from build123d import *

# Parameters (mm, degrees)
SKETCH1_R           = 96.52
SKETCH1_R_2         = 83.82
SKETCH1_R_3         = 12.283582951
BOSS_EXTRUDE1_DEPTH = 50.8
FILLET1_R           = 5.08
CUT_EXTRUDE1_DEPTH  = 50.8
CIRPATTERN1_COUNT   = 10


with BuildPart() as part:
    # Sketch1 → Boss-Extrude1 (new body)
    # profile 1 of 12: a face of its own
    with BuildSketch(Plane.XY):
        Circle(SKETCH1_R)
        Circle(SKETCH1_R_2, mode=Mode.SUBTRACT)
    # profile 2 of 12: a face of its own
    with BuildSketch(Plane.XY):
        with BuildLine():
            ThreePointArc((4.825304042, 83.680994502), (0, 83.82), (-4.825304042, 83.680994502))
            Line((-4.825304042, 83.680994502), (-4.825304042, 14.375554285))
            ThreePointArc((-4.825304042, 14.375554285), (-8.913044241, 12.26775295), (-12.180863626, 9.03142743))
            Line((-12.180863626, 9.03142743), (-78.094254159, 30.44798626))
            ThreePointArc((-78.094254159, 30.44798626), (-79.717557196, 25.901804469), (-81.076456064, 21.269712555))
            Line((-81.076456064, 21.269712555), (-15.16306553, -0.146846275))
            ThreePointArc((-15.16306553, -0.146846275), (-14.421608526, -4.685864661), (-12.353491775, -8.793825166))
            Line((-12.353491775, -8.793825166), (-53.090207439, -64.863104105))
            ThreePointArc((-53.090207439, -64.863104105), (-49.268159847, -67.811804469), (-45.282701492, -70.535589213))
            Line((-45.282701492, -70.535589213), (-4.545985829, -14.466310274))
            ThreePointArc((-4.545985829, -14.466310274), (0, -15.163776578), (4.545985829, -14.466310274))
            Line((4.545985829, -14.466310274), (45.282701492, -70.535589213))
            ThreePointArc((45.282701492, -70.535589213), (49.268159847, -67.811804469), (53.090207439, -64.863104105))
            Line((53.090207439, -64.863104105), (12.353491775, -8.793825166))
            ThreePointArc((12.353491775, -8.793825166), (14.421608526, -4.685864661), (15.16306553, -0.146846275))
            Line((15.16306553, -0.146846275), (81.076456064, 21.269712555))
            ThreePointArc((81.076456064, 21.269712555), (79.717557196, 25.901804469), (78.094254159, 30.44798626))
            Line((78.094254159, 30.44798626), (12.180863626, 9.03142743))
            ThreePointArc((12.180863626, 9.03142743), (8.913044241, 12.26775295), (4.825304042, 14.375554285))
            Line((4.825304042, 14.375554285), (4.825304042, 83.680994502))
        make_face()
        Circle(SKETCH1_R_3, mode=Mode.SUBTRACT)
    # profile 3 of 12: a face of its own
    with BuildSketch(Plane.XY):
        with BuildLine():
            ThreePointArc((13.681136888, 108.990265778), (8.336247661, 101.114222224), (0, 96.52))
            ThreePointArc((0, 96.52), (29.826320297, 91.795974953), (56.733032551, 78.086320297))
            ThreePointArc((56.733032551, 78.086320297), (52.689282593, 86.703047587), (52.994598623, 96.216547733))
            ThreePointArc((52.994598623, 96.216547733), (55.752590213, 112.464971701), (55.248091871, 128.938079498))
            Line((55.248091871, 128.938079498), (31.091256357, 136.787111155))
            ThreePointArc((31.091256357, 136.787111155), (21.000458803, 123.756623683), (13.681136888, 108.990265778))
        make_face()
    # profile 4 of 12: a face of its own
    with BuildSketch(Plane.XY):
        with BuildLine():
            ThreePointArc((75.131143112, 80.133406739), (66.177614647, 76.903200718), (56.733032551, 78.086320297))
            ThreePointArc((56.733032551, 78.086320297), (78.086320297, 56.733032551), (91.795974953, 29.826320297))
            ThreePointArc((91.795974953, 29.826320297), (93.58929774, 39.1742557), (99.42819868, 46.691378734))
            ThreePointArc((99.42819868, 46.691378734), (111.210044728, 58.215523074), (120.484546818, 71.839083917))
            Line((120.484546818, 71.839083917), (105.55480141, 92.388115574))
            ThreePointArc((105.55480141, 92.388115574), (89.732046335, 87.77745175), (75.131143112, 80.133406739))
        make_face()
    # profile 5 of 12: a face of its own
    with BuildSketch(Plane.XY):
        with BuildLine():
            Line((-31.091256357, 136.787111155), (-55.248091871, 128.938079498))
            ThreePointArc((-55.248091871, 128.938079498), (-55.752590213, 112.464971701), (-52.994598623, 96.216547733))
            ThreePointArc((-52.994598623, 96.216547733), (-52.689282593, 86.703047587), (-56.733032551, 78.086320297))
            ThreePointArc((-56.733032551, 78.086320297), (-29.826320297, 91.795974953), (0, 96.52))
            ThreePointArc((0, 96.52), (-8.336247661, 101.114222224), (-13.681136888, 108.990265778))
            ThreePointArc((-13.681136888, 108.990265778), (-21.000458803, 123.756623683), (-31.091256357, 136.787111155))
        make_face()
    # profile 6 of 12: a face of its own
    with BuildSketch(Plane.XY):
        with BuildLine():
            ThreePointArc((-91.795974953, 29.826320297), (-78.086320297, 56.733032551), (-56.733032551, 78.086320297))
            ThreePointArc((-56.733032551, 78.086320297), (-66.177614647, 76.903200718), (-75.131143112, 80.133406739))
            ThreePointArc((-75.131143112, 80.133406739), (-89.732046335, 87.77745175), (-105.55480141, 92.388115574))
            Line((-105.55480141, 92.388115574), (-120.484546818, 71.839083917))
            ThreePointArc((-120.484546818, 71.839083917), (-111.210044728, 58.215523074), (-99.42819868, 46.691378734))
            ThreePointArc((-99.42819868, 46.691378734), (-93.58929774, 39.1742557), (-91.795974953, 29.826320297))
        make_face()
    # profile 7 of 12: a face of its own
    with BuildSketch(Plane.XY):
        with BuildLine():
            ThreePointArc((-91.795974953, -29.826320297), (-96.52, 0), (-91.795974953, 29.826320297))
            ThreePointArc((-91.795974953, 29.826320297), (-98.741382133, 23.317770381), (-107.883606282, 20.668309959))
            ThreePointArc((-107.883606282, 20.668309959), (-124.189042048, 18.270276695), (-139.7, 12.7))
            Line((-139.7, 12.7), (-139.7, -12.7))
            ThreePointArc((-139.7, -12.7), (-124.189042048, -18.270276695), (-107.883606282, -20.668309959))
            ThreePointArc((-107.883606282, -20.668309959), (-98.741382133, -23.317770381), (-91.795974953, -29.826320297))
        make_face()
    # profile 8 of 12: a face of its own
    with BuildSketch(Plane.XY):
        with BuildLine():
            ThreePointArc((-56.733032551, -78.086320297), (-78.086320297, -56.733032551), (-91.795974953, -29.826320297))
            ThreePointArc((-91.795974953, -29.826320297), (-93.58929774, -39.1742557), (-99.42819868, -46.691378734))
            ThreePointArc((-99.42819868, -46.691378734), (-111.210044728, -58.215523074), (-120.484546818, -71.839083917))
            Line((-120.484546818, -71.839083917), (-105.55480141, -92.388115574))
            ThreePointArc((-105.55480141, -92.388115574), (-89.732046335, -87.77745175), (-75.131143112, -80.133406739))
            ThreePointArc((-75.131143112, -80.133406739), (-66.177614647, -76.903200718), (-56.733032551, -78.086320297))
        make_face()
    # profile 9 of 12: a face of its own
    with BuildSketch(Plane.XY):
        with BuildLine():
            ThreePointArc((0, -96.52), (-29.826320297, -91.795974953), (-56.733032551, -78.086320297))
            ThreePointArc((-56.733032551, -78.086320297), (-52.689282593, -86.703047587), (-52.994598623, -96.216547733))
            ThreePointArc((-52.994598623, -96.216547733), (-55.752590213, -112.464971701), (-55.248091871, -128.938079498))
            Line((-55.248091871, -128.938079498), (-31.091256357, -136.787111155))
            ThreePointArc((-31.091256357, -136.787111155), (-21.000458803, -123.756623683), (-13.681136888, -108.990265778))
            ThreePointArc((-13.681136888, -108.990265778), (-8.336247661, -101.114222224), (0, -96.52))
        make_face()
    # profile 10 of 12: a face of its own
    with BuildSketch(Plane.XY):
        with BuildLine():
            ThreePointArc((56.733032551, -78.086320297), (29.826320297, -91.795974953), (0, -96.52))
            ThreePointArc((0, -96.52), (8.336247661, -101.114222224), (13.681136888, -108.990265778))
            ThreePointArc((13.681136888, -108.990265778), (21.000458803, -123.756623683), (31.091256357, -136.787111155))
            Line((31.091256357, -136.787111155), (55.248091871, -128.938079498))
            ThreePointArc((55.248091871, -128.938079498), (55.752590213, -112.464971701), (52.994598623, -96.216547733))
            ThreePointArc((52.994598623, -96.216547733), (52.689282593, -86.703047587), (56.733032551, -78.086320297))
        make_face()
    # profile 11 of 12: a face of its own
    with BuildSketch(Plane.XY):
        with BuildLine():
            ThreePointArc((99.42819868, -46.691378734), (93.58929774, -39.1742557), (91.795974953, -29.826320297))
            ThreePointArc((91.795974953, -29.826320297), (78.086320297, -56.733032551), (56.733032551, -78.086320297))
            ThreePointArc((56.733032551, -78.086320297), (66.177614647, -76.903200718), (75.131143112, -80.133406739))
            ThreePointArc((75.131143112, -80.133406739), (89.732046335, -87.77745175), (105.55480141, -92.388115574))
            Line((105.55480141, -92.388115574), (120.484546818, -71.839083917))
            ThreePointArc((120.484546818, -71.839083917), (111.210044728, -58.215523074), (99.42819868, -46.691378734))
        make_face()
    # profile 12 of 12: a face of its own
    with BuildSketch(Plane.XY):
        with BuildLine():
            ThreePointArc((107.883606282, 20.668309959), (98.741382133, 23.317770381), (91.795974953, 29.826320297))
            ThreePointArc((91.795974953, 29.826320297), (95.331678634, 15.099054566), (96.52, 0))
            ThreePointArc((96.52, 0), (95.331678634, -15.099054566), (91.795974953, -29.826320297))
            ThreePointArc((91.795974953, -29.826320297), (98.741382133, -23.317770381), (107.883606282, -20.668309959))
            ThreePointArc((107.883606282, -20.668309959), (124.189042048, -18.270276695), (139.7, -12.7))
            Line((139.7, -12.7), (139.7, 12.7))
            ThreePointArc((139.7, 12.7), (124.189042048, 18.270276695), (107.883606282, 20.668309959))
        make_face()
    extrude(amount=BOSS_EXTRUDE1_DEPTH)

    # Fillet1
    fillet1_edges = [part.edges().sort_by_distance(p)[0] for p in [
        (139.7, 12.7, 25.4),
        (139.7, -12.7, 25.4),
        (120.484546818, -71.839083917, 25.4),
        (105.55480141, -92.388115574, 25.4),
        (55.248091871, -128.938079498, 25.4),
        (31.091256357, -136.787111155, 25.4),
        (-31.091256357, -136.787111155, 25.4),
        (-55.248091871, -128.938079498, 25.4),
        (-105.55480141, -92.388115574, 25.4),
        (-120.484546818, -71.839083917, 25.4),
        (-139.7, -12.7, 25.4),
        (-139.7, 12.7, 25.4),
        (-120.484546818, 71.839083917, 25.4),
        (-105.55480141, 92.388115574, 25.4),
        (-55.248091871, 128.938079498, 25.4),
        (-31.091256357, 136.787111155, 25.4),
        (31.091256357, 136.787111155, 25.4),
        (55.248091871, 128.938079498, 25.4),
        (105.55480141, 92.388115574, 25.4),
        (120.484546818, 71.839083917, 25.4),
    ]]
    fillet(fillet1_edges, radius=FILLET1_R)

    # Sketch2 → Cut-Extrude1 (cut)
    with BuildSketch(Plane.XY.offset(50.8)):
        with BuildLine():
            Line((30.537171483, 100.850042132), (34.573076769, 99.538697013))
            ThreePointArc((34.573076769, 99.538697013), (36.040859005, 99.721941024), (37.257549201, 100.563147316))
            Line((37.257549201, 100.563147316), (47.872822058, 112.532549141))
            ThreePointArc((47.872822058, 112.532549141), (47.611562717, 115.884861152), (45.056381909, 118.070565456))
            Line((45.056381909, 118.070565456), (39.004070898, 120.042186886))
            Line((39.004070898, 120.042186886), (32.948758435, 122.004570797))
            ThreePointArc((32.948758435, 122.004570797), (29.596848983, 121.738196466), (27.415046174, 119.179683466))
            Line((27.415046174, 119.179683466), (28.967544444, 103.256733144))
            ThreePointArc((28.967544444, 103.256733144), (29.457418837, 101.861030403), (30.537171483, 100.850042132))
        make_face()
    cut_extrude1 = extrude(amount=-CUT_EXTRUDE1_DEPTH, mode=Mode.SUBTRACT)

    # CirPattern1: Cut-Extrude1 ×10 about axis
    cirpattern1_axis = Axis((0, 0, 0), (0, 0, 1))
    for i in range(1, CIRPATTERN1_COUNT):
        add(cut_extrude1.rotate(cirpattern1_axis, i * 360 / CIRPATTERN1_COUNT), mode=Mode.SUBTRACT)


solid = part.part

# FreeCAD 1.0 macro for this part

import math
import FreeCAD as App
import Part
import Sketcher

V = App.Vector
Q = App.Units.Quantity


def edges_at(feature, points):
    """Names of the edges that pass closest to the given points."""
    edges = feature.Shape.Edges
    near = lambda p: min(range(len(edges)), key=lambda i: edges[i].distToShape(Part.Vertex(*p))[0])
    return sorted({f"Edge{near(p) + 1}" for p in points})

doc = App.newDocument("Part")
body = doc.addObject("PartDesign::Body", "Body")

# Sketch on XY plane
sketch1 = body.newObject("Sketcher::SketchObject", "Sketch")
sketch1.AttachmentSupport = (doc.getObject("XY_Plane"), [""])
sketch1.MapMode = "FlatFace"
sketch1.addGeometry([
    Part.ArcOfCircle(Part.Circle(V(108.834981, 41.048925, 0), V(0, 0, 1), 20.402808), math.radians(-146.629422), math.radians(-92.672649)),  # 0
    Part.ArcOfCircle(Part.Circle(V(112.177302, 30.762319, 0), V(0, 0, 1), 20.402808), math.radians(128.672649), math.radians(182.629422)),  # 1
    Part.ArcOfCircle(Part.Circle(V(47.527732, 111.537166, 0), V(0, 0, 1), 83.058019), math.radians(-51.327351), math.radians(-28.551993)),  # 2
    Part.LineSegment(V(120.484547, 71.839084, 0), V(105.554801, 92.388116, 0)),  # 3
    Part.ArcOfCircle(Part.Circle(V(120.765025, 10.734679, 0), V(0, 0, 1), 83.058019), math.radians(100.551993), math.radians(123.327351)),  # 4
    Part.ArcOfCircle(Part.Circle(V(63.921396, 97.180875, 0), V(0, 0, 1), 20.402808), math.radians(-110.629422), math.radians(-56.672649)),  # 5
    Part.ArcOfCircle(Part.Circle(V(72.671707, 90.823403, 0), V(0, 0, 1), 20.402808), math.radians(164.672649), math.radians(218.629422)),  # 6
    Part.ArcOfCircle(Part.Circle(V(-27.109158, 118.171562, 0), V(0, 0, 1), 83.058019), math.radians(-15.327351), math.radians(7.448007)),  # 7
    Part.LineSegment(V(55.248092, 128.938079, 0), V(31.091256, 136.787111, 0)),  # 8
    Part.ArcOfCircle(Part.Circle(V(91.391271, 79.668439, 0), V(0, 0, 1), 83.058019), math.radians(136.551993), math.radians(159.327351)),  # 9
    Part.ArcOfCircle(Part.Circle(V(-5.407989, 116.193033, 0), V(0, 0, 1), 20.402808), math.radians(-74.629422), math.radians(-20.672649)),  # 10
    Part.ArcOfCircle(Part.Circle(V(5.407989, 116.193033, 0), V(0, 0, 1), 20.402808), math.radians(-159.327351), math.radians(-105.370578)),  # 11
    Part.ArcOfCircle(Part.Circle(V(-91.391271, 79.668439, 0), V(0, 0, 1), 83.058019), math.radians(20.672649), math.radians(43.448007)),  # 12
    Part.LineSegment(V(-31.091256, 136.787111, 0), V(-55.248092, 128.938079, 0)),  # 13
    Part.ArcOfCircle(Part.Circle(V(27.109158, 118.171562, 0), V(0, 0, 1), 83.058019), math.radians(172.551993), math.radians(195.327351)),  # 14
    Part.ArcOfCircle(Part.Circle(V(-72.671707, 90.823403, 0), V(0, 0, 1), 20.402808), math.radians(-38.629422), math.radians(15.327351)),  # 15
    Part.ArcOfCircle(Part.Circle(V(-63.921396, 97.180875, 0), V(0, 0, 1), 20.402808), math.radians(-123.327351), math.radians(-69.370578)),  # 16
    Part.ArcOfCircle(Part.Circle(V(-120.765025, 10.734679, 0), V(0, 0, 1), 83.058019), math.radians(56.672649), math.radians(79.448007)),  # 17
    Part.LineSegment(V(-105.554801, 92.388116, 0), V(-120.484547, 71.839084, 0)),  # 18
    Part.ArcOfCircle(Part.Circle(V(-47.527732, 111.537166, 0), V(0, 0, 1), 83.058019), math.radians(-151.448007), math.radians(-128.672649)),  # 19
    Part.ArcOfCircle(Part.Circle(V(-112.177302, 30.762319, 0), V(0, 0, 1), 20.402808), math.radians(-2.629422), math.radians(51.327351)),  # 20
    Part.ArcOfCircle(Part.Circle(V(-108.834981, 41.048925, 0), V(0, 0, 1), 20.402808), math.radians(-87.327351), math.radians(-33.370578)),  # 21
    Part.ArcOfCircle(Part.Circle(V(-104.010644, -62.299363, 0), V(0, 0, 1), 83.058019), math.radians(92.672649), math.radians(115.448007)),  # 22
    Part.LineSegment(V(-139.7, 12.7, 0), V(-139.7, -12.7, 0)),  # 23
    Part.ArcOfCircle(Part.Circle(V(-104.010644, 62.299363, 0), V(0, 0, 1), 83.058019), math.radians(-115.448007), math.radians(-92.672649)),  # 24
    Part.ArcOfCircle(Part.Circle(V(-108.834981, -41.048925, 0), V(0, 0, 1), 20.402808), math.radians(33.370578), math.radians(87.327351)),  # 25
    Part.ArcOfCircle(Part.Circle(V(-112.177302, -30.762319, 0), V(0, 0, 1), 20.402808), math.radians(-51.327351), math.radians(2.629422)),  # 26
    Part.ArcOfCircle(Part.Circle(V(-47.527732, -111.537166, 0), V(0, 0, 1), 83.058019), math.radians(128.672649), math.radians(151.448007)),  # 27
    Part.LineSegment(V(-120.484547, -71.839084, 0), V(-105.554801, -92.388116, 0)),  # 28
    Part.ArcOfCircle(Part.Circle(V(-120.765025, -10.734679, 0), V(0, 0, 1), 83.058019), math.radians(-79.448007), math.radians(-56.672649)),  # 29
    Part.ArcOfCircle(Part.Circle(V(-63.921396, -97.180875, 0), V(0, 0, 1), 20.402808), math.radians(69.370578), math.radians(123.327351)),  # 30
    Part.ArcOfCircle(Part.Circle(V(-72.671707, -90.823403, 0), V(0, 0, 1), 20.402808), math.radians(-15.327351), math.radians(38.629422)),  # 31
    Part.ArcOfCircle(Part.Circle(V(27.109158, -118.171562, 0), V(0, 0, 1), 83.058019), math.radians(164.672649), math.radians(187.448007)),  # 32
    Part.LineSegment(V(-55.248092, -128.938079, 0), V(-31.091256, -136.787111, 0)),  # 33
    Part.ArcOfCircle(Part.Circle(V(-91.391271, -79.668439, 0), V(0, 0, 1), 83.058019), math.radians(-43.448007), math.radians(-20.672649)),  # 34
    Part.ArcOfCircle(Part.Circle(V(5.407989, -116.193033, 0), V(0, 0, 1), 20.402808), math.radians(105.370578), math.radians(159.327351)),  # 35
    Part.ArcOfCircle(Part.Circle(V(-5.407989, -116.193033, 0), V(0, 0, 1), 20.402808), math.radians(20.672649), math.radians(74.629422)),  # 36
    Part.ArcOfCircle(Part.Circle(V(91.391271, -79.668439, 0), V(0, 0, 1), 83.058019), math.radians(-159.327351), math.radians(-136.551993)),  # 37
    Part.LineSegment(V(31.091256, -136.787111, 0), V(55.248092, -128.938079, 0)),  # 38
    Part.ArcOfCircle(Part.Circle(V(-27.109158, -118.171562, 0), V(0, 0, 1), 83.058019), math.radians(-7.448007), math.radians(15.327351)),  # 39
    Part.ArcOfCircle(Part.Circle(V(72.671707, -90.823403, 0), V(0, 0, 1), 20.402808), math.radians(141.370578), math.radians(195.327351)),  # 40
    Part.ArcOfCircle(Part.Circle(V(63.921396, -97.180875, 0), V(0, 0, 1), 20.402808), math.radians(56.672649), math.radians(110.629422)),  # 41
    Part.ArcOfCircle(Part.Circle(V(120.765025, -10.734679, 0), V(0, 0, 1), 83.058019), math.radians(-123.327351), math.radians(-100.551993)),  # 42
    Part.LineSegment(V(105.554801, -92.388116, 0), V(120.484547, -71.839084, 0)),  # 43
    Part.ArcOfCircle(Part.Circle(V(47.527732, -111.537166, 0), V(0, 0, 1), 83.058019), math.radians(28.551993), math.radians(51.327351)),  # 44
    Part.ArcOfCircle(Part.Circle(V(112.177302, -30.762319, 0), V(0, 0, 1), 20.402808), math.radians(177.370578), math.radians(231.327351)),  # 45
    Part.ArcOfCircle(Part.Circle(V(108.834981, -41.048925, 0), V(0, 0, 1), 20.402808), math.radians(92.672649), math.radians(146.629422)),  # 46
    Part.ArcOfCircle(Part.Circle(V(104.010644, 62.299363, 0), V(0, 0, 1), 83.058019), math.radians(-87.327351), math.radians(-64.551993)),  # 47
    Part.LineSegment(V(139.7, -12.7, 0), V(139.7, 12.7, 0)),  # 48
    Part.ArcOfCircle(Part.Circle(V(104.010644, -62.299363, 0), V(0, 0, 1), 83.058019), math.radians(64.551993), math.radians(87.327351)),  # 49
    Part.ArcOfCircle(Part.Circle(V(0, 0, 0), V(0, 0, 1), 83.82), math.radians(-50.699803), math.radians(14.699803)),  # 50
    Part.LineSegment(V(53.090207, -64.863104, 0), V(12.353492, -8.793825, 0)),  # 51
    Part.ArcOfCircle(Part.Circle(V(0, 0, 0), V(0, 0, 1), 15.163777), math.radians(-35.445138), math.radians(-0.554862)),  # 52
    Part.LineSegment(V(15.163066, -0.146846, 0), V(81.076456, 21.269713, 0)),  # 53
    Part.ArcOfCircle(Part.Circle(V(0, 0, 0), V(0, 0, 1), 83.82), math.radians(21.300197), math.radians(86.699803)),  # 54
    Part.LineSegment(V(78.094254, 30.447986, 0), V(12.180864, 9.031427, 0)),  # 55
    Part.ArcOfCircle(Part.Circle(V(0, 0, 0), V(0, 0, 1), 15.163777), math.radians(36.554862), math.radians(71.445138)),  # 56
    Part.LineSegment(V(4.825304, 14.375554, 0), V(4.825304, 83.680995, 0)),  # 57
    Part.ArcOfCircle(Part.Circle(V(0, 0, 0), V(0, 0, 1), 83.82), math.radians(93.300197), math.radians(158.699803)),  # 58
    Part.LineSegment(V(-4.825304, 83.680995, 0), V(-4.825304, 14.375554, 0)),  # 59
    Part.ArcOfCircle(Part.Circle(V(0, 0, 0), V(0, 0, 1), 15.163777), math.radians(108.554862), math.radians(143.445138)),  # 60
    Part.LineSegment(V(-12.180864, 9.031427, 0), V(-78.094254, 30.447986, 0)),  # 61
    Part.ArcOfCircle(Part.Circle(V(0, 0, 0), V(0, 0, 1), 83.82), math.radians(165.300197), math.radians(230.699803)),  # 62
    Part.LineSegment(V(-81.076456, 21.269713, 0), V(-15.163066, -0.146846, 0)),  # 63
    Part.ArcOfCircle(Part.Circle(V(0, 0, 0), V(0, 0, 1), 15.163777), math.radians(-179.445138), math.radians(-144.554862)),  # 64
    Part.LineSegment(V(-12.353492, -8.793825, 0), V(-53.090207, -64.863104, 0)),  # 65
    Part.ArcOfCircle(Part.Circle(V(0, 0, 0), V(0, 0, 1), 83.82), math.radians(-122.699803), math.radians(-57.300197)),  # 66
    Part.LineSegment(V(-45.282701, -70.535589, 0), V(-4.545986, -14.46631, 0)),  # 67
    Part.ArcOfCircle(Part.Circle(V(0, 0, 0), V(0, 0, 1), 15.163777), math.radians(-107.445138), math.radians(-72.554862)),  # 68
    Part.LineSegment(V(4.545986, -14.46631, 0), V(45.282701, -70.535589, 0)),  # 69
    Part.Circle(V(0, 0, 0), V(0, 0, 1), 12.283583),  # 70
], False)
sketch1.addConstraint([
    Sketcher.Constraint("Coincident", 0, 1, 1, 2),
    Sketcher.Constraint("Tangent", 1, 1, 2, 1),
    Sketcher.Constraint("Coincident", 2, 2, 3, 1),
    Sketcher.Constraint("Coincident", 3, 2, 4, 1),
    Sketcher.Constraint("Tangent", 4, 2, 5, 2),
    Sketcher.Constraint("Coincident", 5, 1, 6, 2),
    Sketcher.Constraint("Tangent", 6, 1, 7, 1),
    Sketcher.Constraint("Coincident", 7, 2, 8, 1),
    Sketcher.Constraint("Coincident", 8, 2, 9, 1),
    Sketcher.Constraint("Tangent", 9, 2, 10, 2),
    Sketcher.Constraint("Coincident", 10, 1, 11, 2),
    Sketcher.Constraint("Tangent", 11, 1, 12, 1),
    Sketcher.Constraint("Coincident", 12, 2, 13, 1),
    Sketcher.Constraint("Coincident", 13, 2, 14, 1),
    Sketcher.Constraint("Tangent", 14, 2, 15, 2),
    Sketcher.Constraint("Coincident", 15, 1, 16, 2),
    Sketcher.Constraint("Tangent", 16, 1, 17, 1),
    Sketcher.Constraint("Coincident", 17, 2, 18, 1),
    Sketcher.Constraint("Coincident", 18, 2, 19, 1),
    Sketcher.Constraint("Tangent", 19, 2, 20, 2),
    Sketcher.Constraint("Coincident", 20, 1, 21, 2),
    Sketcher.Constraint("Tangent", 21, 1, 22, 1),
    Sketcher.Constraint("Coincident", 22, 2, 23, 1),
    Sketcher.Constraint("Coincident", 23, 2, 24, 1),
    Sketcher.Constraint("Tangent", 24, 2, 25, 2),
    Sketcher.Constraint("Coincident", 25, 1, 26, 2),
    Sketcher.Constraint("Tangent", 26, 1, 27, 1),
    Sketcher.Constraint("Coincident", 27, 2, 28, 1),
    Sketcher.Constraint("Coincident", 28, 2, 29, 1),
    Sketcher.Constraint("Tangent", 29, 2, 30, 2),
    Sketcher.Constraint("Coincident", 30, 1, 31, 2),
    Sketcher.Constraint("Tangent", 31, 1, 32, 1),
    Sketcher.Constraint("Coincident", 32, 2, 33, 1),
    Sketcher.Constraint("Coincident", 33, 2, 34, 1),
    Sketcher.Constraint("Tangent", 34, 2, 35, 2),
    Sketcher.Constraint("Coincident", 35, 1, 36, 2),
    Sketcher.Constraint("Tangent", 36, 1, 37, 1),
    Sketcher.Constraint("Coincident", 37, 2, 38, 1),
    Sketcher.Constraint("Coincident", 38, 2, 39, 1),
    Sketcher.Constraint("Tangent", 39, 2, 40, 2),
    Sketcher.Constraint("Coincident", 40, 1, 41, 2),
    Sketcher.Constraint("Tangent", 41, 1, 42, 1),
    Sketcher.Constraint("Coincident", 42, 2, 43, 1),
    Sketcher.Constraint("Coincident", 43, 2, 44, 1),
    Sketcher.Constraint("Tangent", 44, 2, 45, 2),
    Sketcher.Constraint("Coincident", 45, 1, 46, 2),
    Sketcher.Constraint("Tangent", 46, 1, 47, 1),
    Sketcher.Constraint("Coincident", 47, 2, 48, 1),
    Sketcher.Constraint("Coincident", 48, 2, 49, 1),
    Sketcher.Constraint("Tangent", 49, 2, 0, 2),
    Sketcher.Constraint("Coincident", 50, 1, 51, 1),
    Sketcher.Constraint("Coincident", 51, 2, 52, 1),
    Sketcher.Constraint("Coincident", 52, 2, 53, 1),
    Sketcher.Constraint("Coincident", 53, 2, 50, 2),
    Sketcher.Constraint("Coincident", 54, 1, 55, 1),
    Sketcher.Constraint("Coincident", 55, 2, 56, 1),
    Sketcher.Constraint("Coincident", 56, 2, 57, 1),
    Sketcher.Constraint("Coincident", 57, 2, 54, 2),
    Sketcher.Constraint("Coincident", 58, 1, 59, 1),
    Sketcher.Constraint("Coincident", 59, 2, 60, 1),
    Sketcher.Constraint("Coincident", 60, 2, 61, 1),
    Sketcher.Constraint("Coincident", 61, 2, 58, 2),
    Sketcher.Constraint("Coincident", 62, 1, 63, 1),
    Sketcher.Constraint("Coincident", 63, 2, 64, 1),
    Sketcher.Constraint("Coincident", 64, 2, 65, 1),
    Sketcher.Constraint("Coincident", 65, 2, 62, 2),
    Sketcher.Constraint("Coincident", 66, 1, 67, 1),
    Sketcher.Constraint("Coincident", 67, 2, 68, 1),
    Sketcher.Constraint("Coincident", 68, 2, 69, 1),
    Sketcher.Constraint("Coincident", 69, 2, 66, 2),
    Sketcher.Constraint("Vertical", 23),
    Sketcher.Constraint("Vertical", 48),
    Sketcher.Constraint("Vertical", 57),
    Sketcher.Constraint("Vertical", 59),
    Sketcher.Constraint("Coincident", 50, 3, -1, 1),
    Sketcher.Constraint("Coincident", 52, 3, -1, 1),
    Sketcher.Constraint("Coincident", 54, 3, -1, 1),
    Sketcher.Constraint("Coincident", 56, 3, -1, 1),
    Sketcher.Constraint("Coincident", 58, 3, -1, 1),
    Sketcher.Constraint("Coincident", 60, 3, -1, 1),
    Sketcher.Constraint("Coincident", 62, 3, -1, 1),
    Sketcher.Constraint("Coincident", 64, 3, -1, 1),
    Sketcher.Constraint("Coincident", 66, 3, -1, 1),
    Sketcher.Constraint("Coincident", 68, 3, -1, 1),
    Sketcher.Constraint("Coincident", 70, 3, -1, 1),
    Sketcher.Constraint("Equal", 0, 1),
    Sketcher.Constraint("Equal", 2, 4),
    Sketcher.Constraint("Equal", 1, 5),
    Sketcher.Constraint("Equal", 5, 6),
    Sketcher.Constraint("Equal", 4, 7),
    Sketcher.Constraint("Equal", 7, 9),
    Sketcher.Constraint("Equal", 6, 10),
    Sketcher.Constraint("Equal", 10, 11),
    Sketcher.Constraint("Equal", 9, 12),
    Sketcher.Constraint("Equal", 12, 14),
    Sketcher.Constraint("Equal", 11, 15),
    Sketcher.Constraint("Equal", 15, 16),
    Sketcher.Constraint("Equal", 14, 17),
    Sketcher.Constraint("Equal", 17, 19),
    Sketcher.Constraint("Equal", 16, 20),
    Sketcher.Constraint("Equal", 20, 21),
    Sketcher.Constraint("Equal", 19, 22),
    Sketcher.Constraint("Equal", 22, 24),
    Sketcher.Constraint("Equal", 21, 25),
    Sketcher.Constraint("Equal", 25, 26),
    Sketcher.Constraint("Equal", 24, 27),
    Sketcher.Constraint("Equal", 27, 29),
    Sketcher.Constraint("Equal", 26, 30),
    Sketcher.Constraint("Equal", 30, 31),
    Sketcher.Constraint("Equal", 29, 32),
    Sketcher.Constraint("Equal", 32, 34),
    Sketcher.Constraint("Equal", 31, 35),
    Sketcher.Constraint("Equal", 35, 36),
    Sketcher.Constraint("Equal", 34, 37),
    Sketcher.Constraint("Equal", 37, 39),
    Sketcher.Constraint("Equal", 36, 40),
    Sketcher.Constraint("Equal", 40, 41),
    Sketcher.Constraint("Equal", 39, 42),
    Sketcher.Constraint("Equal", 42, 44),
    Sketcher.Constraint("Equal", 41, 45),
    Sketcher.Constraint("Equal", 45, 46),
    Sketcher.Constraint("Equal", 44, 47),
    Sketcher.Constraint("Equal", 47, 49),
    Sketcher.Constraint("Equal", 50, 54),
    Sketcher.Constraint("Equal", 52, 56),
    Sketcher.Constraint("Equal", 54, 58),
    Sketcher.Constraint("Equal", 56, 60),
    Sketcher.Constraint("Equal", 58, 62),
    Sketcher.Constraint("Equal", 60, 64),
    Sketcher.Constraint("Equal", 62, 66),
    Sketcher.Constraint("Equal", 64, 68),
    Sketcher.Constraint("Symmetric", 0, 3, 25, 3, -1, 1),
    Sketcher.Constraint("Symmetric", 1, 3, 26, 3, -1, 1),
    Sketcher.Constraint("Symmetric", 4, 3, 29, 3, -1, 1),
    Sketcher.Constraint("Symmetric", 6, 3, 31, 3, -1, 1),
    Sketcher.Constraint("Symmetric", 9, 3, 34, 3, -1, 1),
    Sketcher.Constraint("Symmetric", 11, 3, 36, 3, -1, 1),
    Sketcher.Constraint("Symmetric", 14, 3, 39, 3, -1, 1),
    Sketcher.Constraint("Symmetric", 16, 3, 41, 3, -1, 1),
    Sketcher.Constraint("Symmetric", 19, 3, 44, 3, -1, 1),
    Sketcher.Constraint("Symmetric", 21, 3, 46, 3, -1, 1),
    Sketcher.Constraint("Symmetric", 2, 2, 27, 2, -1, 1),
    Sketcher.Constraint("Symmetric", 7, 2, 32, 2, -1, 1),
    Sketcher.Constraint("Symmetric", 12, 2, 37, 2, -1, 1),
    Sketcher.Constraint("Symmetric", 17, 2, 42, 2, -1, 1),
    Sketcher.Constraint("Symmetric", 22, 2, 47, 2, -1, 1),
    Sketcher.Constraint("Symmetric", 10, 3, 11, 3, -2),
    Sketcher.Constraint("Symmetric", 7, 3, 14, 3, -2),
    Sketcher.Constraint("Symmetric", 5, 3, 16, 3, -2),
    Sketcher.Constraint("Symmetric", 2, 3, 19, 3, -2),
    Sketcher.Constraint("Symmetric", 0, 3, 21, 3, -2),
    Sketcher.Constraint("Symmetric", 8, 2, 12, 2, -2),
    Sketcher.Constraint("Symmetric", 3, 2, 17, 2, -2),
    Sketcher.Constraint("Symmetric", 30, 1, 40, 1, -2),
    Sketcher.Constraint("PointOnObject", 35, 1, -2),
    Sketcher.Constraint("Parallel", 3, 28),
    Sketcher.Constraint("Parallel", 8, 33),
    Sketcher.Constraint("Parallel", 13, 38),
    Sketcher.Constraint("Parallel", 18, 43),
    Sketcher.Constraint("Parallel", 28, 51),
    Sketcher.Constraint("Parallel", 38, 53),
    Sketcher.Constraint("Parallel", 53, 55),
    Sketcher.Constraint("Parallel", 33, 61),
    Sketcher.Constraint("Parallel", 61, 63),
    Sketcher.Constraint("Parallel", 43, 65),
    Sketcher.Constraint("Parallel", 65, 67),
    Sketcher.Constraint("Parallel", 51, 69),
    Sketcher.Constraint("Horizontal", 6, 3, 15, 3),
    Sketcher.Constraint("Horizontal", 1, 3, 20, 3),
    Sketcher.Constraint("Horizontal", 26, 3, 45, 3),
    Sketcher.Constraint("Horizontal", 24, 3, 47, 3),
    Sketcher.Constraint("Horizontal", 22, 3, 49, 3),
    Sketcher.Constraint("Horizontal", 7, 2, 13, 2),
    Sketcher.Constraint("Horizontal", 2, 2, 18, 2),
    Sketcher.Constraint("Horizontal", 57, 2, 58, 1),
    Sketcher.Constraint("Horizontal", 55, 2, 60, 2),
    Sketcher.Constraint("Horizontal", 53, 2, 62, 1),
    Sketcher.Constraint("Horizontal", 51, 2, 64, 2),
    Sketcher.Constraint("Horizontal", 67, 2, 68, 2),
    Sketcher.Constraint("Equal", 3, 8),
    Sketcher.Constraint("Equal", 51, 53),
    Sketcher.Constraint("Equal", 53, 55),
    Sketcher.Constraint("Equal", 65, 67),
    Sketcher.Constraint("Radius", 50, Q("3.3 in")),
    Sketcher.Constraint("DistanceY", 23, 2, 23, 1, Q("1 in")),
    Sketcher.Constraint("Distance", 3, Q("1 in")),
    Sketcher.Constraint("Angle", 3, Q("126 deg")),
    Sketcher.Constraint("Angle", 8, Q("162 deg")),
    Sketcher.Constraint("DistanceY", -1, 1, 10, 1, Q("3.8 in")),
    Sketcher.Constraint("DistanceX", 22, 2, -1, 1, Q("5.5 in")),
    Sketcher.Constraint("Radius", 0, Q("20.402808 mm")),
    Sketcher.Constraint("Radius", 2, Q("83.058019 mm")),
    Sketcher.Constraint("Diameter", 70, Q("24.567166 mm")),
    Sketcher.Constraint("Radius", 52, Q("15.163777 mm")),
    Sketcher.Constraint("DistanceY", 57, 1, 57, 2, Q("69.30544 mm")),
    Sketcher.Constraint("DistanceX", -1, 1, 1, 1, Q("99.428199 mm")),
    Sketcher.Constraint("DistanceX", -1, 1, 3, 2, Q("105.554801 mm")),
    Sketcher.Constraint("DistanceX", -1, 1, 6, 1, Q("52.994599 mm")),
    Sketcher.Constraint("DistanceX", 66, 1, -1, 1, Q("45.282701 mm")),
    Sketcher.Constraint("DistanceX", -1, 1, 0, 3, Q("108.834981 mm")),
    Sketcher.Constraint("DistanceY", -1, 1, 1, 3, Q("30.762319 mm")),
    Sketcher.Constraint("DistanceX", -1, 1, 2, 3, Q("47.527732 mm")),
    Sketcher.Constraint("DistanceY", -1, 1, 4, 3, Q("10.734679 mm")),
    Sketcher.Constraint("DistanceX", 7, 3, -1, 1, Q("27.109158 mm")),
    Sketcher.Constraint("DistanceX", -1, 1, 9, 3, Q("91.391271 mm")),
    Sketcher.Constraint("DistanceY", -1, 1, 9, 3, Q("79.668439 mm")),
    Sketcher.Constraint("DistanceY", -1, 1, 0, 1, Q("29.82632 mm")),
    Sketcher.Constraint("DistanceY", -1, 1, 5, 1, Q("78.08632 mm")),
    Sketcher.Constraint("DistanceX", -1, 1, 7, 2, Q("55.248092 mm")),
])
pad1 = body.newObject("PartDesign::Pad", "Pad")
pad1.Profile = sketch1
pad1.Length = Q("2 in")
doc.recompute()

fillet = body.newObject("PartDesign::Fillet", "Fillet")
fillet.Base = (pad1, edges_at(pad1, [
    (139.7, 12.7, 25.4),
    (139.7, -12.7, 25.4),
    (120.485, -71.839, 25.4),
    (105.555, -92.388, 25.4),
    (55.248, -128.938, 25.4),
    (31.091, -136.787, 25.4),
    (-31.091, -136.787, 25.4),
    (-55.248, -128.938, 25.4),
    (-105.555, -92.388, 25.4),
    (-120.485, -71.839, 25.4),
    (-139.7, -12.7, 25.4),
    (-139.7, 12.7, 25.4),
    (-120.485, 71.839, 25.4),
    (-105.555, 92.388, 25.4),
    (-55.248, 128.938, 25.4),
    (-31.091, 136.787, 25.4),
    (31.091, 136.787, 25.4),
    (55.248, 128.938, 25.4),
    (105.555, 92.388, 25.4),
    (120.485, 71.839, 25.4),
]))
fillet.Radius = Q("0.2 in")

# Sketch on XY plane
sketch2 = body.newObject("Sketcher::SketchObject", "Sketch001")
sketch2.AttachmentSupport = (doc.getObject("XY_Plane"), [""])
sketch2.MapMode = "FlatFace"
sketch2.AttachmentOffset = App.Placement(V(0, 0, 2 * 25.4), App.Rotation())
sketch2.addGeometry([
    Part.LineSegment(V(30.537171, 100.850042, 0), V(34.573077, 99.538697, 0)),  # 0
    Part.ArcOfCircle(Part.Circle(V(34.933152, 102.62458, 0), V(0, 0, 1), 3.106819), math.radians(-96.655444), math.radians(-41.568775)),  # 1
    Part.LineSegment(V(37.257549, 100.563147, 0), V(47.872822, 112.532549, 0)),  # 2
    Part.ArcOfCircle(Part.Circle(V(43.695594, 113.893337, 0), V(0, 0, 1), 4.393288), math.radians(-18.043714), math.radians(71.956286)),  # 3
    Part.LineSegment(V(45.056382, 118.070565, 0), V(39.004071, 120.042187, 0)),  # 4
    Part.LineSegment(V(39.004071, 120.042187, 0), V(32.948758, 122.004571, 0)),  # 5
    Part.ArcOfCircle(Part.Circle(V(31.594346, 117.825271, 0), V(0, 0, 1), 4.393288), math.radians(72.043714), math.radians(162.043714)),  # 6
    Part.LineSegment(V(27.415046, 119.179683, 0), V(28.967544, 103.256733, 0)),  # 7
    Part.ArcOfCircle(Part.Circle(V(32.059701, 103.55822, 0), V(0, 0, 1), 3.106819), math.radians(-174.431225), math.radians(-119.344556)),  # 8
], False)
sketch2.addConstraint([
    Sketcher.Constraint("Coincident", 0, 2, 1, 1),
    Sketcher.Constraint("Tangent", 1, 2, 2, 1),
    Sketcher.Constraint("Coincident", 2, 2, 3, 1),
    Sketcher.Constraint("Tangent", 3, 2, 4, 1),
    Sketcher.Constraint("Coincident", 4, 2, 5, 1),
    Sketcher.Constraint("Tangent", 5, 2, 6, 1),
    Sketcher.Constraint("Coincident", 6, 2, 7, 1),
    Sketcher.Constraint("Tangent", 7, 2, 8, 1),
    Sketcher.Constraint("Coincident", 8, 2, 0, 1),
    Sketcher.Constraint("Equal", 3, 6),
    Sketcher.Constraint("Equal", 1, 8),
    Sketcher.Constraint("Equal", 4, 5),
    Sketcher.Constraint("Equal", 2, 7),
    Sketcher.Constraint("Angle", 0, Q("-18 deg")),
    Sketcher.Constraint("Radius", 1, Q("3.106819 mm")),
    Sketcher.Constraint("Radius", 3, Q("4.393288 mm")),
    Sketcher.Constraint("Distance", 0, Q("4.243602 mm")),
    Sketcher.Constraint("DistanceX", -1, 1, 8, 3, Q("32.059701 mm")),
    Sketcher.Constraint("DistanceY", 1, 2, 2, 2, Q("11.969402 mm")),
    Sketcher.Constraint("DistanceY", 6, 3, 5, 2, Q("4.1793 mm")),
    Sketcher.Constraint("DistanceX", 6, 2, 6, 3, Q("4.1793 mm")),
    Sketcher.Constraint("DistanceX", 7, 2, 6, 3, Q("2.626802 mm")),
    Sketcher.Constraint("DistanceY", -1, 1, 1, 3, Q("102.62458 mm")),
    Sketcher.Constraint("DistanceY", -1, 1, 6, 3, Q("117.825271 mm")),
    Sketcher.Constraint("DistanceY", -1, 1, 8, 3, Q("103.55822 mm")),
    Sketcher.Constraint("DistanceX", -1, 1, 1, 2, Q("37.257549 mm")),
    Sketcher.Constraint("DistanceX", -1, 1, 3, 2, Q("45.056382 mm")),
])
pocket1 = body.newObject("PartDesign::Pocket", "Pocket")
pocket1.Profile = sketch2
pocket1.Length = Q("2 in")
doc.recompute()

polarpattern = body.newObject("PartDesign::PolarPattern", "PolarPattern")
polarpattern.Originals = [pocket1]
polarpattern.Axis = (doc.getObject("Z_Axis"), [""])
polarpattern.Angle = 360
polarpattern.Occurrences = 10
body.Tip = polarpattern

doc.recompute()
